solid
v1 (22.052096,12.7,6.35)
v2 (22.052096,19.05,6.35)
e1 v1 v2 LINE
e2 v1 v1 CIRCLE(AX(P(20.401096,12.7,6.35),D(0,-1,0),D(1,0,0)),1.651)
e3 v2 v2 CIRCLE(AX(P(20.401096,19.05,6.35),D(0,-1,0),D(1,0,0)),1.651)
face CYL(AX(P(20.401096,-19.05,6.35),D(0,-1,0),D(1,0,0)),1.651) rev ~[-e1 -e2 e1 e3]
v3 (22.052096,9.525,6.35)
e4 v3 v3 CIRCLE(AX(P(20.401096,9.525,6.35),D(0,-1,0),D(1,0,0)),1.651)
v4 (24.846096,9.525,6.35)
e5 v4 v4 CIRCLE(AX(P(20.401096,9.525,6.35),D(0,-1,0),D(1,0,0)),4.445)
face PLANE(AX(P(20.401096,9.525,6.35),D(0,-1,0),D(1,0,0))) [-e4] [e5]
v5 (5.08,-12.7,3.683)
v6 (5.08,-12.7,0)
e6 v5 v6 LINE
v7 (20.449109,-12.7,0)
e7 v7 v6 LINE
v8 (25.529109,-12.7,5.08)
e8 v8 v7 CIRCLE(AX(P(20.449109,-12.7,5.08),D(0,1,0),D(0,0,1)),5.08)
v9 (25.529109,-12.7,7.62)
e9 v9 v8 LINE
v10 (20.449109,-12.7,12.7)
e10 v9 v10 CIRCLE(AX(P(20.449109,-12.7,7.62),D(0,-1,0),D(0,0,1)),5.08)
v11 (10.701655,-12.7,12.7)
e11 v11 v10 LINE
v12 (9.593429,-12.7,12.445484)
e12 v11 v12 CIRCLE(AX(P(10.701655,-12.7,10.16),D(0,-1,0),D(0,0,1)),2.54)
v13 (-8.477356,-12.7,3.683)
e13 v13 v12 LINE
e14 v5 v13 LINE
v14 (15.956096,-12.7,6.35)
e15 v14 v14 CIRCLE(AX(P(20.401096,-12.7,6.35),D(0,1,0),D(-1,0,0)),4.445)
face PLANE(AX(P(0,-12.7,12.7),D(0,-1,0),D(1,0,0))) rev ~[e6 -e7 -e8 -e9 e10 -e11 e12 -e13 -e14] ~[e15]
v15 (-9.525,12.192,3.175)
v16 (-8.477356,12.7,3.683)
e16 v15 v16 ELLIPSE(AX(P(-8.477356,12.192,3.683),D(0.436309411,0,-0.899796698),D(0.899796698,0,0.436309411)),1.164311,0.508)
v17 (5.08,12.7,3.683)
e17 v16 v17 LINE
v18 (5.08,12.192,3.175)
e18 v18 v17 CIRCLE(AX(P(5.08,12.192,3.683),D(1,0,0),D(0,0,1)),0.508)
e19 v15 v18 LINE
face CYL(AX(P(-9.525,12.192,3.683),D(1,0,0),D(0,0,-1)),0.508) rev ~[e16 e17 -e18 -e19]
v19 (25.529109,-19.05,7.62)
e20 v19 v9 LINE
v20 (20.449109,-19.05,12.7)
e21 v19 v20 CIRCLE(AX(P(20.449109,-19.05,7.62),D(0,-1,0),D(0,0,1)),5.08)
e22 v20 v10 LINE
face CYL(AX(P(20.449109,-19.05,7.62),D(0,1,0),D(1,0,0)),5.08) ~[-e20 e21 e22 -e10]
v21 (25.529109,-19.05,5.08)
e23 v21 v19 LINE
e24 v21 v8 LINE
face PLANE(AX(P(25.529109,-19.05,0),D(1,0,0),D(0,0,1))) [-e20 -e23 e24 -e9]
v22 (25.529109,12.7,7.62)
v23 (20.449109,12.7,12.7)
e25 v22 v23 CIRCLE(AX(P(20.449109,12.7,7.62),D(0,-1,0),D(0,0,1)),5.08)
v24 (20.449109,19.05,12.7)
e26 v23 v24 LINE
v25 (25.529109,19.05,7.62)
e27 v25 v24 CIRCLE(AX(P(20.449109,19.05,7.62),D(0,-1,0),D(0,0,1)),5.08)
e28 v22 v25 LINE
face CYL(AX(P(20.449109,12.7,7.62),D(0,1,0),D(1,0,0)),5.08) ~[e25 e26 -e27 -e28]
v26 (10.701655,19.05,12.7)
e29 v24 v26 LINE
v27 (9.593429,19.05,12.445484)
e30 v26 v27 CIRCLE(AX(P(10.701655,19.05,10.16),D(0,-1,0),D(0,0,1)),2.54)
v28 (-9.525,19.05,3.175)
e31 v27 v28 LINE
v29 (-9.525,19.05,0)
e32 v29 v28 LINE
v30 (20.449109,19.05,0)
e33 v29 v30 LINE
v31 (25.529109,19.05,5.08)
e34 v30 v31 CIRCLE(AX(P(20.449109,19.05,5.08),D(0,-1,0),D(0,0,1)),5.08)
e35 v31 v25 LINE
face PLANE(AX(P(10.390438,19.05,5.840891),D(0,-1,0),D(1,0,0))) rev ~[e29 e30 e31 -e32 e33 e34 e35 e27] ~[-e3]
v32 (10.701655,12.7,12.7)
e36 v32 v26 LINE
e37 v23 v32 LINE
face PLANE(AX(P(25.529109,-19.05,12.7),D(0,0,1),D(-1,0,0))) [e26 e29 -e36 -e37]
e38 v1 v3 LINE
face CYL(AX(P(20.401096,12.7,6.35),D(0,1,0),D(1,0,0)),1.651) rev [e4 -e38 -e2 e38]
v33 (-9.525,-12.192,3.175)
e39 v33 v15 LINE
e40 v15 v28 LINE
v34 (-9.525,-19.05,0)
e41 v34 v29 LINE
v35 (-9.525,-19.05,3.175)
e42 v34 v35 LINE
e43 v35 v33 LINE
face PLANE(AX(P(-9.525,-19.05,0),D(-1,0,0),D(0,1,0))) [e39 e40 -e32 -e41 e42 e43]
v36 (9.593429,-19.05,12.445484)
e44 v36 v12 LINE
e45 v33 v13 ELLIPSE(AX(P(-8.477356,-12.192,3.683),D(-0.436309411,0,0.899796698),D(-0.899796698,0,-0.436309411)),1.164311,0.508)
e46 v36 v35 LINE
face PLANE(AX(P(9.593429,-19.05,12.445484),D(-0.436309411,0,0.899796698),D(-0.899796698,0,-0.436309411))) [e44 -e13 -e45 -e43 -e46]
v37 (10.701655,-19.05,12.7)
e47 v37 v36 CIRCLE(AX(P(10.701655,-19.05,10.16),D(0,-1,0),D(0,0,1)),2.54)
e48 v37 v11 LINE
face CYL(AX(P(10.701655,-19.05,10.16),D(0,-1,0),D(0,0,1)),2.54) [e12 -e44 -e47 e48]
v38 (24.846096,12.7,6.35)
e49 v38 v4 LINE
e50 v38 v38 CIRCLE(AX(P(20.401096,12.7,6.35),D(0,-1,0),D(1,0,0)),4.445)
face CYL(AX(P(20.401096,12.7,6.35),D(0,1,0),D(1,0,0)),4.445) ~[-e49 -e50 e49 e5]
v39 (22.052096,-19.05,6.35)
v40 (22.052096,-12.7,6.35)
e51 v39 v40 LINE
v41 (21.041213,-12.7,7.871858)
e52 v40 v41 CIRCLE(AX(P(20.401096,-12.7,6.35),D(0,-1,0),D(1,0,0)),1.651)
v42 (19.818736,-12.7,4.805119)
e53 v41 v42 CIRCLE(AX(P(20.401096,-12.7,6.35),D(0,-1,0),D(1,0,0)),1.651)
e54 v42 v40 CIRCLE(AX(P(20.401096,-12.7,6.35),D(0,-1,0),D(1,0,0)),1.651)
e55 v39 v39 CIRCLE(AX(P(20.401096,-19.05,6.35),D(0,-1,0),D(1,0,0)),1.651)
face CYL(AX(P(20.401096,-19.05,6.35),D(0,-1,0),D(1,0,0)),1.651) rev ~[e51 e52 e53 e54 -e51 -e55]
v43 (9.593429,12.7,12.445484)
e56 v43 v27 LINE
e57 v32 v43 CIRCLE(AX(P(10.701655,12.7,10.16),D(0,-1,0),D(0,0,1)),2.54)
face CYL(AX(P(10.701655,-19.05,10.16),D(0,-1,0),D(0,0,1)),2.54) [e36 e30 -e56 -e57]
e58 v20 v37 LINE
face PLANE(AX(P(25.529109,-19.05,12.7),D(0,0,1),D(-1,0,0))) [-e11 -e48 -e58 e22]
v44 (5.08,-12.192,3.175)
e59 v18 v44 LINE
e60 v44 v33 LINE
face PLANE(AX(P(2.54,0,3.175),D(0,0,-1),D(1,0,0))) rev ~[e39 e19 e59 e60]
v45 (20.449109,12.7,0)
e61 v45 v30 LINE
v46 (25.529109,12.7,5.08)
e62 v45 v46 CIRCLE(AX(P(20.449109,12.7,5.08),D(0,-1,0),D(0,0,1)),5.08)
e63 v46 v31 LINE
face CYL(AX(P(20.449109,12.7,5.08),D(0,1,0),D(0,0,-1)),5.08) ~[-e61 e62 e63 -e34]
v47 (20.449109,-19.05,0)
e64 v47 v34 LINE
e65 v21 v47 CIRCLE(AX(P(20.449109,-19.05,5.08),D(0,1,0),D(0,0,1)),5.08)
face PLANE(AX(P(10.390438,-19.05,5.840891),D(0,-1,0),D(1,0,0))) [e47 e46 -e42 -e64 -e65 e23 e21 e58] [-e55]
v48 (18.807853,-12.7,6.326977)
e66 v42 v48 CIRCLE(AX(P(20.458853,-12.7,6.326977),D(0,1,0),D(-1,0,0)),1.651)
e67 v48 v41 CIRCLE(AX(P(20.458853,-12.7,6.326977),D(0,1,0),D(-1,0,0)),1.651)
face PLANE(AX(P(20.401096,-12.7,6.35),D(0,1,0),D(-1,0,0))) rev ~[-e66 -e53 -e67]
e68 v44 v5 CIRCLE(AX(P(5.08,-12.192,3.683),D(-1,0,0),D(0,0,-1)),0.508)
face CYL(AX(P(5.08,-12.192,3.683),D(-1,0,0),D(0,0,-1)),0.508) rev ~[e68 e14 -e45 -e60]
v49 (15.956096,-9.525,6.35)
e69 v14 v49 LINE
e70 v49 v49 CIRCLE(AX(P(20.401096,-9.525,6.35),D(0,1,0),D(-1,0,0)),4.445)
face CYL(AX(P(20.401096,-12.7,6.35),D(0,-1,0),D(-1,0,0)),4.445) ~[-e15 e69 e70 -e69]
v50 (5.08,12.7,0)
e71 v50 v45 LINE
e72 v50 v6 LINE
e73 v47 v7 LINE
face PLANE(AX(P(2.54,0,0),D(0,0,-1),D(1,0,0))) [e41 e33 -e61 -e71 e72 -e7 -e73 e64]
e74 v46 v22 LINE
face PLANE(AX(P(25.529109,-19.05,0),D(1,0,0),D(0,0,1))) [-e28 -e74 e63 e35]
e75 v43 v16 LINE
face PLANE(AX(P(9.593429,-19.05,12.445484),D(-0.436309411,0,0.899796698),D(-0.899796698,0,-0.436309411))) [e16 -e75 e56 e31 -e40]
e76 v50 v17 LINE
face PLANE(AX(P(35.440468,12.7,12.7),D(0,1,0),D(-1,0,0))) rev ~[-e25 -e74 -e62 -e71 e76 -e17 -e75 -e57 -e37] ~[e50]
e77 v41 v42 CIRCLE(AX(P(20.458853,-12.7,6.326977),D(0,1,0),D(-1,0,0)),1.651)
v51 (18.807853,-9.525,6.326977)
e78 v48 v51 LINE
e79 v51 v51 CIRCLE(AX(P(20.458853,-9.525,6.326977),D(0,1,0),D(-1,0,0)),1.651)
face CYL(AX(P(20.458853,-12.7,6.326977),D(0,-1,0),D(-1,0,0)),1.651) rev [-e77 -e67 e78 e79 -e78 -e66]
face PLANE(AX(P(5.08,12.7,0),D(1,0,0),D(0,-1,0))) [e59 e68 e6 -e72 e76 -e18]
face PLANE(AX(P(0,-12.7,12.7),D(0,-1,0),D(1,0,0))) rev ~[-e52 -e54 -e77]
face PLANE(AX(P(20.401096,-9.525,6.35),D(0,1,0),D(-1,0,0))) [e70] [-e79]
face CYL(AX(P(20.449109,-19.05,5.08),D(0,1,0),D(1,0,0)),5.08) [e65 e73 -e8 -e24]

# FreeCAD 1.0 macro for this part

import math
import FreeCAD as App
import Part
import Sketcher

V = App.Vector
Q = App.Units.Quantity


def edges_at(feature, points):
    """Names of the edges that pass closest to the given points."""
    edges = feature.Shape.Edges
    near = lambda p: min(range(len(edges)), key=lambda i: edges[i].distToShape(Part.Vertex(*p))[0])
    return sorted({f"Edge{near(p) + 1}" for p in points})

doc = App.newDocument("Part")
body = doc.addObject("PartDesign::Body", "Body")

# Sketch on XY plane
sketch1 = body.newObject("Sketcher::SketchObject", "Sketch")
sketch1.AttachmentSupport = (doc.getObject("XY_Plane"), [""])
sketch1.MapMode = "FlatFace"
sketch1.addGeometry(Part.LineSegment(V(-10, 19, 0), V(-10, -19, 0)), False)
sketch1.addGeometry(Part.LineSegment(V(-10, -19, 0), V(10, -19, 0)), False)
sketch1.addGeometry(Part.LineSegment(V(10, -19, 0), V(10, 19, 0)), False)
sketch1.addGeometry(Part.LineSegment(V(10, 19, 0), V(-10, 19, 0)), False)
sketch1.addConstraint(Sketcher.Constraint("Coincident", 0, 2, 1, 1))
sketch1.addConstraint(Sketcher.Constraint("Coincident", 1, 2, 2, 1))
sketch1.addConstraint(Sketcher.Constraint("Coincident", 2, 2, 3, 1))
sketch1.addConstraint(Sketcher.Constraint("Coincident", 3, 2, 0, 1))
sketch1.addConstraint(Sketcher.Constraint("Vertical", 0))
sketch1.addConstraint(Sketcher.Constraint("Horizontal", 1))
sketch1.addConstraint(Sketcher.Constraint("Vertical", 2))
sketch1.addConstraint(Sketcher.Constraint("Horizontal", 3))
sketch1.addConstraint(Sketcher.Constraint("Symmetric", 0, 2, 2, 2, -1, 1))
sketch1.addConstraint(Sketcher.Constraint("DistanceY", 0, 2, 0, 1, Q("1.5 in")))
sketch1.addConstraint(Sketcher.Constraint("DistanceX", 1, 1, 1, 2, Q("0.75 in")))
pad1 = body.newObject("PartDesign::Pad", "Pad")
pad1.Profile = sketch1
pad1.Length = Q("0.125 in")

# Sketch on XZ plane
sketch2 = body.newObject("Sketcher::SketchObject", "Sketch001")
sketch2.AttachmentSupport = (doc.getObject("XZ_Plane"), [""])
sketch2.MapMode = "FlatFace"
sketch2.AttachmentOffset = App.Placement(V(0, 0, 0.75 * 25.4), App.Rotation())
sketch2.addGeometry(Part.LineSegment(V(25.5, 0, 0), V(25.5, 12.7, 0)), False)
sketch2.addGeometry(Part.LineSegment(V(25.5, 12.7, 0), V(10.7, 12.7, 0)), False)
sketch2.addGeometry(Part.ArcOfCircle(Part.Circle(V(10.7, 10.2, 0), V(0, 0, 1), 2.5), math.radians(90), math.radians(116)), False)
sketch2.addGeometry(Part.LineSegment(V(9.6, 12.4, 0), V(-9.5, 3.2, 0)), False)
sketch2.addGeometry(Part.LineSegment(V(-9.5, 3.2, 0), V(9.5, 3.2, 0)), False)
sketch2.addGeometry(Part.LineSegment(V(9.5, 3.2, 0), V(9.5, 0, 0)), False)
sketch2.addGeometry(Part.LineSegment(V(9.5, 0, 0), V(25.5, 0, 0)), False)
sketch2.addGeometry(Part.Circle(V(20.4, 6.3, 0), V(0, 0, 1), 1.7), False)
sketch2.addConstraint(Sketcher.Constraint("Coincident", 0, 2, 1, 1))
sketch2.addConstraint(Sketcher.Constraint("Tangent", 1, 2, 2, 1))
sketch2.addConstraint(Sketcher.Constraint("Tangent", 2, 2, 3, 1))
sketch2.addConstraint(Sketcher.Constraint("Coincident", 3, 2, 4, 1))
sketch2.addConstraint(Sketcher.Constraint("Coincident", 4, 2, 5, 1))
sketch2.addConstraint(Sketcher.Constraint("Coincident", 5, 2, 6, 1))
sketch2.addConstraint(Sketcher.Constraint("Coincident", 6, 2, 0, 1))
sketch2.addConstraint(Sketcher.Constraint("Vertical", 0))
sketch2.addConstraint(Sketcher.Constraint("Horizontal", 1))
sketch2.addConstraint(Sketcher.Constraint("Horizontal", 4))
sketch2.addConstraint(Sketcher.Constraint("Vertical", 5))
sketch2.addConstraint(Sketcher.Constraint("Horizontal", 6))
sketch2.addConstraint(Sketcher.Constraint("PointOnObject", 5, 2, -1))
sketch2.addConstraint(Sketcher.Constraint("Radius", 2, Q("0.1 in")))
sketch2.addConstraint(Sketcher.Constraint("Diameter", 7, Q("0.13 in")))
sketch2.addConstraint(Sketcher.Constraint("DistanceY", 0, 1, 0, 2, Q("0.5 in")))
sketch2.addConstraint(Sketcher.Constraint("DistanceX", 4, 1, 4, 2, Q("0.75 in")))
sketch2.addConstraint(Sketcher.Constraint("DistanceY", 5, 2, 5, 1, Q("0.125 in")))
sketch2.addConstraint(Sketcher.Constraint("DistanceY", -1, 1, 7, 3, Q("0.25 in")))
sketch2.addConstraint(Sketcher.Constraint("DistanceX", 3, 2, -1, 1, Q("0.375 in")))
sketch2.addConstraint(Sketcher.Constraint("Distance", 3, Q("21.247499 mm")))
sketch2.addConstraint(Sketcher.Constraint("DistanceX", 6, 1, 6, 2, Q("16.004109 mm")))
sketch2.addConstraint(Sketcher.Constraint("DistanceX", 2, 3, 7, 3, Q("9.699441 mm")))
pad2 = body.newObject("PartDesign::Pad", "Pad001")
pad2.Profile = sketch2
pad2.Length = Q("1.5 in")
pad2.Reversed = True

# Sketch on XY plane
sketch3 = body.newObject("Sketcher::SketchObject", "Sketch002")
sketch3.AttachmentSupport = (doc.getObject("XY_Plane"), [""])
sketch3.MapMode = "FlatFace"
sketch3.AttachmentOffset = App.Placement(V(0, 0, 0.5 * 25.4), App.Rotation())
sketch3.addGeometry(Part.LineSegment(V(0, 13, 0), V(0, -13, 0)), False)
sketch3.addGeometry(Part.LineSegment(V(0, -13, 0), V(35, -13, 0)), False)
sketch3.addGeometry(Part.LineSegment(V(35, -13, 0), V(35, 13, 0)), False)
sketch3.addGeometry(Part.LineSegment(V(35, 13, 0), V(0, 13, 0)), False)
sketch3.addConstraint(Sketcher.Constraint("Coincident", 0, 2, 1, 1))
sketch3.addConstraint(Sketcher.Constraint("Coincident", 1, 2, 2, 1))
sketch3.addConstraint(Sketcher.Constraint("Coincident", 2, 2, 3, 1))
sketch3.addConstraint(Sketcher.Constraint("Coincident", 3, 2, 0, 1))
sketch3.addConstraint(Sketcher.Constraint("Vertical", 0))
sketch3.addConstraint(Sketcher.Constraint("Horizontal", 1))
sketch3.addConstraint(Sketcher.Constraint("Vertical", 2))
sketch3.addConstraint(Sketcher.Constraint("Horizontal", 3))
sketch3.addConstraint(Sketcher.Constraint("Symmetric", 0, 2, 3, 2, -1, 1))
sketch3.addConstraint(Sketcher.Constraint("DistanceY", 0, 2, 0, 1, Q("1 in")))
sketch3.addConstraint(Sketcher.Constraint("DistanceX", 1, 1, 1, 2, Q("35.440468 mm")))
pocket1 = body.newObject("PartDesign::Pocket", "Pocket")
pocket1.Profile = sketch3
pocket1.Type = "ThroughAll"
doc.recompute()

fillet = body.newObject("PartDesign::Fillet", "Fillet")
fillet.Base = (pocket1, edges_at(pocket1, [
    (25.529, -15.875, 12.7),
    (25.529, -15.875, 0),
    (25.529, 15.875, 0),
    (25.529, 15.875, 12.7),
]))
fillet.Radius = Q("0.2 in")

# Sketch on XY plane
sketch4 = body.newObject("Sketcher::SketchObject", "Sketch003")
sketch4.AttachmentSupport = (doc.getObject("XY_Plane"), [""])
sketch4.MapMode = "FlatFace"
sketch4.AttachmentOffset = App.Placement(V(0, 0, 0.5 * 25.4), App.Rotation())
sketch4.addGeometry(Part.LineSegment(V(-19, 13, 0), V(-19, -13, 0)), False)
sketch4.addGeometry(Part.LineSegment(V(-19, -13, 0), V(11, -13, 0)), False)
sketch4.addGeometry(Part.LineSegment(V(11, -13, 0), V(11, 13, 0)), False)
sketch4.addGeometry(Part.LineSegment(V(11, 13, 0), V(-19, 13, 0)), False)
sketch4.addConstraint(Sketcher.Constraint("Coincident", 0, 2, 1, 1))
sketch4.addConstraint(Sketcher.Constraint("Coincident", 1, 2, 2, 1))
sketch4.addConstraint(Sketcher.Constraint("Coincident", 2, 2, 3, 1))
sketch4.addConstraint(Sketcher.Constraint("Coincident", 3, 2, 0, 1))
sketch4.addConstraint(Sketcher.Constraint("Vertical", 0))
sketch4.addConstraint(Sketcher.Constraint("Horizontal", 1))
sketch4.addConstraint(Sketcher.Constraint("Vertical", 2))
sketch4.addConstraint(Sketcher.Constraint("Horizontal", 3))
sketch4.addConstraint(Sketcher.Constraint("DistanceY", 0, 2, 0, 1, Q("1 in")))
sketch4.addConstraint(Sketcher.Constraint("DistanceY", 0, 2, -1, 1, Q("0.5 in")))
sketch4.addConstraint(Sketcher.Constraint("DistanceX", 1, 1, 1, 2, Q("30.060383 mm")))
sketch4.addConstraint(Sketcher.Constraint("DistanceX", 0, 2, -1, 1, Q("19.358728 mm")))
pocket2 = body.newObject("PartDesign::Pocket", "Pocket001")
pocket2.Profile = sketch4
pocket2.Length = Q("0.375 in")

# Sketch on XZ plane
sketch5 = body.newObject("Sketcher::SketchObject", "Sketch004")
sketch5.AttachmentSupport = (doc.getObject("XZ_Plane"), [""])
sketch5.MapMode = "FlatFace"
sketch5.AttachmentOffset = App.Placement(V(0, 0, 0.5 * 25.4), App.Rotation())
sketch5.addGeometry(Part.Circle(V(20.4, 6.3, 0), V(0, 0, 1), 4.4), False)
sketch5.addGeometry(Part.Circle(V(20.5, 6.3, 0), V(0, 0, 1), 1.7), False)
sketch5.addConstraint(Sketcher.Constraint("Diameter", 0, Q("0.35 in")))
sketch5.addConstraint(Sketcher.Constraint("Diameter", 1, Q("0.13 in")))
sketch5.addConstraint(Sketcher.Constraint("DistanceY", -1, 1, 0, 3, Q("0.25 in")))
sketch5.addConstraint(Sketcher.Constraint("DistanceX", -1, 1, 0, 3, Q("20.401096 mm")))
sketch5.addConstraint(Sketcher.Constraint("DistanceX", -1, 1, 1, 3, Q("20.458853 mm")))
sketch5.addConstraint(Sketcher.Constraint("DistanceY", -1, 1, 1, 3, Q("6.326977 mm")))
pad3 = body.newObject("PartDesign::Pad", "Pad002")
pad3.Profile = sketch5
pad3.Length = Q("0.125 in")
pad3.Reversed = True

# Sketch on XZ plane
sketch6 = body.newObject("Sketcher::SketchObject", "Sketch005")
sketch6.AttachmentSupport = (doc.getObject("XZ_Plane"), [""])
sketch6.MapMode = "FlatFace"
sketch6.AttachmentOffset = App.Placement(V(0, 0, -0.5 * 25.4), App.Rotation())
sketch6.addGeometry(Part.Circle(V(20.4, 6.3, 0), V(0, 0, 1), 4.4), False)
sketch6.addGeometry(Part.Circle(V(20.4, 6.3, 0), V(0, 0, 1), 1.7), False)
sketch6.addConstraint(Sketcher.Constraint("Coincident", 1, 3, 0, 3))
sketch6.addConstraint(Sketcher.Constraint("Diameter", 0, Q("0.35 in")))
sketch6.addConstraint(Sketcher.Constraint("Diameter", 1, Q("0.13 in")))
sketch6.addConstraint(Sketcher.Constraint("DistanceY", -1, 1, 0, 3, Q("0.25 in")))
sketch6.addConstraint(Sketcher.Constraint("DistanceX", -1, 1, 0, 3, Q("20.401096 mm")))
pad4 = body.newObject("PartDesign::Pad", "Pad003")
pad4.Profile = sketch6
pad4.Length = Q("0.125 in")

# Sketch on XY plane
sketch7 = body.newObject("Sketcher::SketchObject", "Sketch006")
sketch7.AttachmentSupport = (doc.getObject("XY_Plane"), [""])
sketch7.MapMode = "FlatFace"
sketch7.addGeometry(Part.LineSegment(V(0, -13, 0), V(0, 13, 0)), False)
sketch7.addGeometry(Part.LineSegment(V(0, 13, 0), V(5, 13, 0)), False)
sketch7.addGeometry(Part.LineSegment(V(5, 13, 0), V(5, -13, 0)), False)
sketch7.addGeometry(Part.LineSegment(V(5, -13, 0), V(0, -13, 0)), False)
sketch7.addConstraint(Sketcher.Constraint("Coincident", 0, 2, 1, 1))
sketch7.addConstraint(Sketcher.Constraint("Coincident", 1, 2, 2, 1))
sketch7.addConstraint(Sketcher.Constraint("Coincident", 2, 2, 3, 1))
sketch7.addConstraint(Sketcher.Constraint("Coincident", 3, 2, 0, 1))
sketch7.addConstraint(Sketcher.Constraint("Vertical", 0))
sketch7.addConstraint(Sketcher.Constraint("Horizontal", 1))
sketch7.addConstraint(Sketcher.Constraint("Vertical", 2))
sketch7.addConstraint(Sketcher.Constraint("Horizontal", 3))
sketch7.addConstraint(Sketcher.Constraint("Symmetric", 0, 2, 3, 2, -1, 1))
sketch7.addConstraint(Sketcher.Constraint("DistanceY", 0, 1, 0, 2, Q("1 in")))
sketch7.addConstraint(Sketcher.Constraint("DistanceX", 1, 1, 1, 2, Q("0.2 in")))
pad5 = body.newObject("PartDesign::Pad", "Pad004")
pad5.Profile = sketch7
pad5.Length = Q("0.125 in")
doc.recompute()

fillet2 = body.newObject("PartDesign::Fillet", "Fillet001")
fillet2.Base = (pad5, edges_at(pad5, [(-2.223, -12.7, 3.175), (-2.223, 12.7, 3.175)]))
fillet2.Radius = Q("0.02 in")

doc.recompute()
